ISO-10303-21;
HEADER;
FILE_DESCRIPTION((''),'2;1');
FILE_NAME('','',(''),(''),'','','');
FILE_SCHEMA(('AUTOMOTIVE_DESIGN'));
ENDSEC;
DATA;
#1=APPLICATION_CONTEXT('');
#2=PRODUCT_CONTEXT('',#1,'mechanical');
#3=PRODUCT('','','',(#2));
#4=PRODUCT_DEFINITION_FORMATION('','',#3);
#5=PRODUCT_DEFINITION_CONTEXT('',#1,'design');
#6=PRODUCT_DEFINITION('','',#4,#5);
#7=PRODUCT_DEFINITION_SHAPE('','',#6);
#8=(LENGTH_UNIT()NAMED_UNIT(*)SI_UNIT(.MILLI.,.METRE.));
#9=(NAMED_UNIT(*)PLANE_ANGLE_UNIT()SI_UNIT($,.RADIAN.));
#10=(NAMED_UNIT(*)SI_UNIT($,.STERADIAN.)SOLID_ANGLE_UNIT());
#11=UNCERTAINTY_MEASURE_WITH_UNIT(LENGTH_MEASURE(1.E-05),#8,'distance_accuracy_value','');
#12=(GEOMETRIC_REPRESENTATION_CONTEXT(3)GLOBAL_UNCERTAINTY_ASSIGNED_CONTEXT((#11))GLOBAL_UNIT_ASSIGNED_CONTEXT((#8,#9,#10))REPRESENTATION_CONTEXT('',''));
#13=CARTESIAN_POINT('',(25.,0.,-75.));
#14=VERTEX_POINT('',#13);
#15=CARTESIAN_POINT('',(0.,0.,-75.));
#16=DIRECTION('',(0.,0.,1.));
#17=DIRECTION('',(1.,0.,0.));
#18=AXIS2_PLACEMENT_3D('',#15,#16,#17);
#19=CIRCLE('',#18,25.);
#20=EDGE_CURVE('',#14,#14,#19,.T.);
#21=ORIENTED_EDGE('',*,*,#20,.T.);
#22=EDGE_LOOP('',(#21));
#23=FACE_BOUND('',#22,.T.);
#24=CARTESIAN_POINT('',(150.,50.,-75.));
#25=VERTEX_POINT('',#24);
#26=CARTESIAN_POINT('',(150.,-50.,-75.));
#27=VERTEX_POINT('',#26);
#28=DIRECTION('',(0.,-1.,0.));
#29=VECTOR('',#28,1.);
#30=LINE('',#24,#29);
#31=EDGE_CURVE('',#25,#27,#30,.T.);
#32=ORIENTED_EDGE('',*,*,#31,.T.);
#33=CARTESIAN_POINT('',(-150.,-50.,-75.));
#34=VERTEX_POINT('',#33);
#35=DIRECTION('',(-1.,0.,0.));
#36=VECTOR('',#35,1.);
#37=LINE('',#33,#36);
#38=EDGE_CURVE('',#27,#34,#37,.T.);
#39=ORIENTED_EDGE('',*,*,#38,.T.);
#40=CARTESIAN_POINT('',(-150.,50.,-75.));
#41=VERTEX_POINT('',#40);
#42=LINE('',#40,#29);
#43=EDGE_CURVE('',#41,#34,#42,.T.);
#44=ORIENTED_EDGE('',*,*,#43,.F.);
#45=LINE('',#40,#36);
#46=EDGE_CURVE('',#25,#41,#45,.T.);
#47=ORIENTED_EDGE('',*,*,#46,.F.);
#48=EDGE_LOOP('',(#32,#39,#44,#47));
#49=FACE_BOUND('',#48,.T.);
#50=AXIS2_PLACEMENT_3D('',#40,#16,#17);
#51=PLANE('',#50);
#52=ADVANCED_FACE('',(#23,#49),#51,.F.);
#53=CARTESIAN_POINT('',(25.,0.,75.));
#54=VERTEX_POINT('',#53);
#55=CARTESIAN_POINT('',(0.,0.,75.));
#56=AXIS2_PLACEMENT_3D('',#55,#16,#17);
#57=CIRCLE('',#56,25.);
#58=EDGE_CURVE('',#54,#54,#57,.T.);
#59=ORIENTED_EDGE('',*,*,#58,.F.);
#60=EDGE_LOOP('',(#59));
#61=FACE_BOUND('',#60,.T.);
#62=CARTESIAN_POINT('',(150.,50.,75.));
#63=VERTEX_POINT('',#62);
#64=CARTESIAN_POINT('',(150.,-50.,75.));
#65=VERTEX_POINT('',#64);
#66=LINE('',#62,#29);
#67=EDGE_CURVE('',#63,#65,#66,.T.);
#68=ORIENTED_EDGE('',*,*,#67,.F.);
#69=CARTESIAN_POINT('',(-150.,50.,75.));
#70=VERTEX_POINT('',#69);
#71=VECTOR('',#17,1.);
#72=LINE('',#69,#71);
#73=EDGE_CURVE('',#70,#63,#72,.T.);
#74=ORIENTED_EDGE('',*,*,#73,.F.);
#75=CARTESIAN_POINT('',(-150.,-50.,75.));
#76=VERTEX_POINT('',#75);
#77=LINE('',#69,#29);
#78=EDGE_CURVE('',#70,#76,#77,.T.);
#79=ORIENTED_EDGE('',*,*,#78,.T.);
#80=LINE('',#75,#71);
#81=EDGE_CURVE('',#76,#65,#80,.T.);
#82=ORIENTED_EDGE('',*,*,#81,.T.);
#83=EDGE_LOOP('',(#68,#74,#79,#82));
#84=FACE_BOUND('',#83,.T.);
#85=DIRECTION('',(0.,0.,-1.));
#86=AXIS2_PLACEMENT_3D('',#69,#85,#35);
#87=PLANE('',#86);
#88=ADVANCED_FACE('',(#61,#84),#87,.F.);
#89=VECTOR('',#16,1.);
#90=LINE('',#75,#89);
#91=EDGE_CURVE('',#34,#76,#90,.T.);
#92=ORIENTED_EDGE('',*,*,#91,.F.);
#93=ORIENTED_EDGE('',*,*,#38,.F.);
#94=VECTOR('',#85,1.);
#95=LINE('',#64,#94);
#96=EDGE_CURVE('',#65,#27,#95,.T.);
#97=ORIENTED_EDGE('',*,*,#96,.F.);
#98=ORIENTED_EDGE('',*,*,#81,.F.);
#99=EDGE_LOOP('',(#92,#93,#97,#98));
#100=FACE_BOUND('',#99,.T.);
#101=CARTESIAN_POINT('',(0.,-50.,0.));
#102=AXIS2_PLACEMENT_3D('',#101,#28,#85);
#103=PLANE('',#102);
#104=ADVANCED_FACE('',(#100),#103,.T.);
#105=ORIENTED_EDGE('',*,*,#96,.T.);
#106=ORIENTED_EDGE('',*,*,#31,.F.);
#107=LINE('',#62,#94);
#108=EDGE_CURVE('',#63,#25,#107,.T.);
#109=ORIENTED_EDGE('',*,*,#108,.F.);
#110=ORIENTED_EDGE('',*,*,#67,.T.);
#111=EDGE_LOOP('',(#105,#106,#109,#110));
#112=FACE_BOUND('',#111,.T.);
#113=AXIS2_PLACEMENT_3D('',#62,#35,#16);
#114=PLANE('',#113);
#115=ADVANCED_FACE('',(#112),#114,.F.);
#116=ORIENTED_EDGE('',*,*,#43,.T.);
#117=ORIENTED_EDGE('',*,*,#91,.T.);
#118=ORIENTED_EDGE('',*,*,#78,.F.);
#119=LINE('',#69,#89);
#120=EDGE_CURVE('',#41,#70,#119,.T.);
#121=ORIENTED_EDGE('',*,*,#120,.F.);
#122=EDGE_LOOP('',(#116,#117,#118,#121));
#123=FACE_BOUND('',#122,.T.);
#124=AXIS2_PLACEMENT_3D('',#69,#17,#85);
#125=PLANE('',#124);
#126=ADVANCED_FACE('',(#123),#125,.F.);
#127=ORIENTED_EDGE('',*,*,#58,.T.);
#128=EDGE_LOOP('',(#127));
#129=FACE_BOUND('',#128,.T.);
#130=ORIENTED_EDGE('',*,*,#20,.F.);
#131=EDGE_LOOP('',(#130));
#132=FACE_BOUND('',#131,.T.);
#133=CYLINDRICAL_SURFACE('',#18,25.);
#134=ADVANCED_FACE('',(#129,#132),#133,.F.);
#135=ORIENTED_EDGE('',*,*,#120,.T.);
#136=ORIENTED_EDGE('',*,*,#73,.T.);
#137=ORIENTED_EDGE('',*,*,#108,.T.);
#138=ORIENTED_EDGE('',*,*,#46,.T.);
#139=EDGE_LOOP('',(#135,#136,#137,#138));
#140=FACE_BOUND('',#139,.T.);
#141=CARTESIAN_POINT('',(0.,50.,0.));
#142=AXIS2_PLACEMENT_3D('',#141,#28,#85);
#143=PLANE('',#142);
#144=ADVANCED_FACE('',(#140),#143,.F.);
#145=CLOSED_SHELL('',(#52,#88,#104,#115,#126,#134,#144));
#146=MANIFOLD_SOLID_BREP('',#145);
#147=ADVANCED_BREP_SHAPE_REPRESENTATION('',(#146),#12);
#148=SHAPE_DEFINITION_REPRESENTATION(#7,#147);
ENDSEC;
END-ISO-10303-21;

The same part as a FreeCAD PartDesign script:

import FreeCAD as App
import Part
import Sketcher


def add_polygon(sketch, points):
    """Adds a closed chain of lines whose ends are joined by coincident constraints."""
    first, n = sketch.GeometryCount, len(points)
    for a, b in zip(points, points[1:] + points[:1]):
        sketch.addGeometry(Part.LineSegment(App.Vector(*a, 0), App.Vector(*b, 0)), False)
    for i in range(n):
        sketch.addConstraint(Sketcher.Constraint("Coincident", first + i, 2, first + (i + 1) % n, 1))

doc = App.newDocument("Part")
body = doc.addObject("PartDesign::Body", "Body")

sketch1 = body.newObject("Sketcher::SketchObject", "Sketch")
sketch1.AttachmentSupport = (doc.getObject("XZ_Plane"), [""])
sketch1.MapMode = "FlatFace"
add_polygon(sketch1, [(-150, -75), (-150, 75), (150, 75), (150, -75)])
sketch1.addConstraint([
    Sketcher.Constraint("Vertical", 0),
    Sketcher.Constraint("Horizontal", 1),
    Sketcher.Constraint("Vertical", 2),
    Sketcher.Constraint("Horizontal", 3),
    Sketcher.Constraint("Symmetric", 0, 2, 2, 2, -1, 1),
    Sketcher.Constraint("DistanceX", 1, 1, 1, 2, 300.0),
    Sketcher.Constraint("DistanceY", 0, 1, 0, 2, 150.0),
])
pad1 = body.newObject("PartDesign::Pad", "Pad")
pad1.Profile = sketch1
pad1.Length = 100
pad1.Midplane = True

sketch2 = body.newObject("Sketcher::SketchObject", "Sketch001")
sketch2.AttachmentSupport = (doc.getObject("XY_Plane"), [""])
sketch2.MapMode = "FlatFace"
sketch2.AttachmentOffset = App.Placement(App.Vector(0, 0, 75), App.Rotation())
sketch2.addGeometry(Part.Circle(App.Vector(0, 0, 0), App.Vector(0, 0, 1), 25), False)
sketch2.addConstraint([
    Sketcher.Constraint("Coincident", 0, 3, -1, 1),
    Sketcher.Constraint("Diameter", 0, 50.0),
])
pocket1 = body.newObject("PartDesign::Pocket", "Pocket")
pocket1.Profile = sketch2
pocket1.Type = "ThroughAll"

doc.recompute()
